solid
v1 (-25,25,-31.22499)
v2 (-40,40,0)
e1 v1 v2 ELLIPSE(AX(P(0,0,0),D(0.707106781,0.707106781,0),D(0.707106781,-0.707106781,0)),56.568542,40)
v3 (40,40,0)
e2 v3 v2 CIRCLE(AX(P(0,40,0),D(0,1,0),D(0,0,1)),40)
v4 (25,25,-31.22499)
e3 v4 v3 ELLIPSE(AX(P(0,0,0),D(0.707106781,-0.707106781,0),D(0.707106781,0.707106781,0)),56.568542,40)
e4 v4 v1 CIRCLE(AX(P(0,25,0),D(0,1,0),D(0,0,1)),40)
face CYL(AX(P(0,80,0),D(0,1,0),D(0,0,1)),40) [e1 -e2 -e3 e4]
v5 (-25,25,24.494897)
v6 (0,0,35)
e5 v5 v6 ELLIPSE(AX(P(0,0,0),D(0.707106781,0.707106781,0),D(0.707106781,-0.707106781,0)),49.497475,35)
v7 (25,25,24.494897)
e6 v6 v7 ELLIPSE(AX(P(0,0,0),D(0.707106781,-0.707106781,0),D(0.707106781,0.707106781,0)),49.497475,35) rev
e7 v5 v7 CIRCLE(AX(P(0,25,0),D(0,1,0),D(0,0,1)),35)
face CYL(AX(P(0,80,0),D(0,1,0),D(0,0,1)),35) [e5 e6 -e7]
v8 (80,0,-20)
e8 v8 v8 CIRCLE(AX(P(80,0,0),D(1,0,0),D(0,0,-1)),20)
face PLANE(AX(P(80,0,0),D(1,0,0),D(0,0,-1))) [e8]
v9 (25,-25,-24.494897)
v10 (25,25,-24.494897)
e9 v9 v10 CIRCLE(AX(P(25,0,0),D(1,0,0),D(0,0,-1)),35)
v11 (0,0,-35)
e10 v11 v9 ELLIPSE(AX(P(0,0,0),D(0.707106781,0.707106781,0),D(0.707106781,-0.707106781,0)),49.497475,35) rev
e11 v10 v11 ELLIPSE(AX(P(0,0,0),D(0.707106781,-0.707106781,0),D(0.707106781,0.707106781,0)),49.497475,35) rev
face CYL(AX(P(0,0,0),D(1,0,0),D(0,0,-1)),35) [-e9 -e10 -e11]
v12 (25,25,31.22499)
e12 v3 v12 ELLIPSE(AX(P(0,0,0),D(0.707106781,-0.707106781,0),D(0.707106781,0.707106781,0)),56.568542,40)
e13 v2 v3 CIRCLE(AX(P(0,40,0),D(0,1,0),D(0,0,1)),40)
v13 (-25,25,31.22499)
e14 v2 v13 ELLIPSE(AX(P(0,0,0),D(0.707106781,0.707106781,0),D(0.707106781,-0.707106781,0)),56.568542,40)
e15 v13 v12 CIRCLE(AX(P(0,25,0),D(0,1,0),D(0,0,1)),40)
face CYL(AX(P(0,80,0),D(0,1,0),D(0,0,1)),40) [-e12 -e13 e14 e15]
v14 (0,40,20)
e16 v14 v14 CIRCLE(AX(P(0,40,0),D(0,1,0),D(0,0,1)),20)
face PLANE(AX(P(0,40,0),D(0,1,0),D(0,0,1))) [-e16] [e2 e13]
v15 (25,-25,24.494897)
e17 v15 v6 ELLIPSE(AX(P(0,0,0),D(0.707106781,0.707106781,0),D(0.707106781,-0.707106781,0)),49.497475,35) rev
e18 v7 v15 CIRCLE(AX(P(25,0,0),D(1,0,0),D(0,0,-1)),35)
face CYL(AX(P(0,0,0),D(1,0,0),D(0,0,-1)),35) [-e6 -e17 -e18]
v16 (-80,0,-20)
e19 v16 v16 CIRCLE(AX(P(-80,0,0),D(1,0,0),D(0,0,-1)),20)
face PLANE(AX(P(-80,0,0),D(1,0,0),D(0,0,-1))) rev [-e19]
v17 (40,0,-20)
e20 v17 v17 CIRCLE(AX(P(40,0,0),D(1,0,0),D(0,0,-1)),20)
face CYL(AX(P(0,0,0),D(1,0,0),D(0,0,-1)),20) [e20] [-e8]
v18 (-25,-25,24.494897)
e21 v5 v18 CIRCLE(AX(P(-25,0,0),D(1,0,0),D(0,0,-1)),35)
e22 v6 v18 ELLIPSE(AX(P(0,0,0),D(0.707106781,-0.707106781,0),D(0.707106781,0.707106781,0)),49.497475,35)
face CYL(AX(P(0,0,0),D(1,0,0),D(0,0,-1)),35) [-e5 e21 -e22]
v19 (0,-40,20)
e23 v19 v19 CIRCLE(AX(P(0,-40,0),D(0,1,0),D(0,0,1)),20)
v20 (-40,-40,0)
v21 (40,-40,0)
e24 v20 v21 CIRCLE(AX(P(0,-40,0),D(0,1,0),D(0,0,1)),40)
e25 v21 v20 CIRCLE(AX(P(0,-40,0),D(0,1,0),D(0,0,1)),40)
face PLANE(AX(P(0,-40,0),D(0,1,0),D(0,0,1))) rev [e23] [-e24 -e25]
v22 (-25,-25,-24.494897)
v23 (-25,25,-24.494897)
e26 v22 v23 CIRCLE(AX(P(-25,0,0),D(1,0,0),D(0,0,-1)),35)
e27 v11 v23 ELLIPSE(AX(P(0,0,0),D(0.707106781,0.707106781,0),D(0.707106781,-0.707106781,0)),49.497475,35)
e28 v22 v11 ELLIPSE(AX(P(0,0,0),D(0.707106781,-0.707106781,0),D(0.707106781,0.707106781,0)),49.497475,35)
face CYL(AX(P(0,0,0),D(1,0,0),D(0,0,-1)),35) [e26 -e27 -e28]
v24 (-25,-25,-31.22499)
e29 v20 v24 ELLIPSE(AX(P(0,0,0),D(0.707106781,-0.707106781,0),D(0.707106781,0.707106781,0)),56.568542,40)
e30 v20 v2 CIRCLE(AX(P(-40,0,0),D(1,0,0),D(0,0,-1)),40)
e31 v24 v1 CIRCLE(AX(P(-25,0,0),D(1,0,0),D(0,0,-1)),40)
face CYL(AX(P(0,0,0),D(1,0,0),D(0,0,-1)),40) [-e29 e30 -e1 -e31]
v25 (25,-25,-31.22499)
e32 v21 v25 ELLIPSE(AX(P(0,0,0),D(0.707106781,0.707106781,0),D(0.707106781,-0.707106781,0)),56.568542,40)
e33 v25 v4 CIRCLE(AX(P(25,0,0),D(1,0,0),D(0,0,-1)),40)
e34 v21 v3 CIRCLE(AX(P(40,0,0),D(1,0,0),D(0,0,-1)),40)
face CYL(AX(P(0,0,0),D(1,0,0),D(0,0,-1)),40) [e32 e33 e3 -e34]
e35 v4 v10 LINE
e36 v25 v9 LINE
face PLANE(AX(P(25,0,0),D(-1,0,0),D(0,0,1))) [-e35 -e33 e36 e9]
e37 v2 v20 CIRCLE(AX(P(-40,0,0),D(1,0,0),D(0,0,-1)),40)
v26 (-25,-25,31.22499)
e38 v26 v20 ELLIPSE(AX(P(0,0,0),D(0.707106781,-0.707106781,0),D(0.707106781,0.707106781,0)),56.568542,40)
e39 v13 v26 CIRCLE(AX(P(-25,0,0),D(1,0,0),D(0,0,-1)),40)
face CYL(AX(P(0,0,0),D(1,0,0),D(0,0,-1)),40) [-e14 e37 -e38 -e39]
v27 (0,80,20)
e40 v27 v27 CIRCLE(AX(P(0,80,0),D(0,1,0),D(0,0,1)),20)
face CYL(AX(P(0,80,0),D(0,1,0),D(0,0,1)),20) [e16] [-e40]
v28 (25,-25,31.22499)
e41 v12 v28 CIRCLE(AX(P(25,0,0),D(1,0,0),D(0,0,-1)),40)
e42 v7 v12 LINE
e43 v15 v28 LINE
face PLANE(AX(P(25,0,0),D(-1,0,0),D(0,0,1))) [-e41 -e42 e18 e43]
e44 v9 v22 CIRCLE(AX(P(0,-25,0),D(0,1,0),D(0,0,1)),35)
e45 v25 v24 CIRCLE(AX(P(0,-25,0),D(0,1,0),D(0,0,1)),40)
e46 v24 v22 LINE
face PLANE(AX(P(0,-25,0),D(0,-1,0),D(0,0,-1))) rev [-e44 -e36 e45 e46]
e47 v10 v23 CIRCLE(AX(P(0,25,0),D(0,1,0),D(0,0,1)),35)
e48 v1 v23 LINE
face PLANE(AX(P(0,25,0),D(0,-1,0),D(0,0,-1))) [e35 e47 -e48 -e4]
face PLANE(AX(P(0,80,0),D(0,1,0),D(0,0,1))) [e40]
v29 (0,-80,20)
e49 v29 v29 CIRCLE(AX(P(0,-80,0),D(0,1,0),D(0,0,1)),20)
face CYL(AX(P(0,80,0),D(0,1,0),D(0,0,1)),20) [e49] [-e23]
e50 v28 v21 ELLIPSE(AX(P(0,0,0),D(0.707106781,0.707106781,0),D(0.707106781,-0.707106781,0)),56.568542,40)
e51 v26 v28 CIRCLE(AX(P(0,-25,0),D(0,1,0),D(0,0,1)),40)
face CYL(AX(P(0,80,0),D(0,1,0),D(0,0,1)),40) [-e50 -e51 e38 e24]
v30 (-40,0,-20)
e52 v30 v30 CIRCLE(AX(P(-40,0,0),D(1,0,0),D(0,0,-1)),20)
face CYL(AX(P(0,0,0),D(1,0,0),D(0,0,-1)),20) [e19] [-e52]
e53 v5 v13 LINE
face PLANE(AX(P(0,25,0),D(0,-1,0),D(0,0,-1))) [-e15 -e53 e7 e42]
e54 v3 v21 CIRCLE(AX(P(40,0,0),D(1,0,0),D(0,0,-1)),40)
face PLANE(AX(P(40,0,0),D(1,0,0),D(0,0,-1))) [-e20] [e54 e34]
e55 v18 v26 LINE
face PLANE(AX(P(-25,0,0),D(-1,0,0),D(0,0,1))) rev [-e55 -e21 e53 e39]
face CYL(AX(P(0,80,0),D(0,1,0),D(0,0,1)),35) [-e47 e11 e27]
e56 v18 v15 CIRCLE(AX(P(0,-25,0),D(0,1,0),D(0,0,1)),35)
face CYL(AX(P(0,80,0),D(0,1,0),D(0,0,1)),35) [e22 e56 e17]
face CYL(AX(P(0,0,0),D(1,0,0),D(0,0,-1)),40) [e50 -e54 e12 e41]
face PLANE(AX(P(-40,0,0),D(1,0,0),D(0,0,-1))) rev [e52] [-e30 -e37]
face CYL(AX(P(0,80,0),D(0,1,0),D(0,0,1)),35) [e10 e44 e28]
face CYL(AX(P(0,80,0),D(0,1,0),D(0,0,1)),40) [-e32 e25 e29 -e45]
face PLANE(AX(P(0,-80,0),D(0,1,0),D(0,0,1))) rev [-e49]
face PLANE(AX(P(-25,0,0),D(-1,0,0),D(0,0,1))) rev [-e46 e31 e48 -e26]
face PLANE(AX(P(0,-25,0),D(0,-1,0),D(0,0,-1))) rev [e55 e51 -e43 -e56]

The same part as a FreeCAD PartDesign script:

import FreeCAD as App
import Part
import Sketcher

V = App.Vector
Q = App.Units.Quantity

doc = App.newDocument("Part")
body = doc.addObject("PartDesign::Body", "Body")

# Sketch on XY plane
sketch1 = body.newObject("Sketcher::SketchObject", "Sketch")
sketch1.AttachmentSupport = (doc.getObject("XY_Plane"), [""])
sketch1.MapMode = "FlatFace"
sketch1.addGeometry([
    Part.LineSegment(V(-40, 20, 0), V(-80, 20, 0)),  # 0
    Part.LineSegment(V(-80, 20, 0), V(-80, 0, 0)),  # 1
    Part.LineSegment(V(-80, 0, 0), V(80, 0, 0)),  # 2
    Part.LineSegment(V(80, 0, 0), V(80, 20, 0)),  # 3
    Part.LineSegment(V(80, 20, 0), V(40, 20, 0)),  # 4
    Part.LineSegment(V(40, 20, 0), V(40, 40, 0)),  # 5
    Part.LineSegment(V(40, 40, 0), V(25, 40, 0)),  # 6
    Part.LineSegment(V(25, 40, 0), V(25, 35, 0)),  # 7
    Part.LineSegment(V(25, 35, 0), V(-25, 35, 0)),  # 8
    Part.LineSegment(V(-25, 35, 0), V(-25, 40, 0)),  # 9
    Part.LineSegment(V(-25, 40, 0), V(-40, 40, 0)),  # 10
    Part.LineSegment(V(-40, 40, 0), V(-40, 20, 0)),  # 11
], False)
sketch1.addConstraint([
    Sketcher.Constraint("Coincident", 0, 2, 1, 1),
    Sketcher.Constraint("Coincident", 1, 2, 2, 1),
    Sketcher.Constraint("Coincident", 2, 2, 3, 1),
    Sketcher.Constraint("Coincident", 3, 2, 4, 1),
    Sketcher.Constraint("Coincident", 4, 2, 5, 1),
    Sketcher.Constraint("Coincident", 5, 2, 6, 1),
    Sketcher.Constraint("Coincident", 6, 2, 7, 1),
    Sketcher.Constraint("Coincident", 7, 2, 8, 1),
    Sketcher.Constraint("Coincident", 8, 2, 9, 1),
    Sketcher.Constraint("Coincident", 9, 2, 10, 1),
    Sketcher.Constraint("Coincident", 10, 2, 11, 1),
    Sketcher.Constraint("Coincident", 11, 2, 0, 1),
    Sketcher.Constraint("Horizontal", 0),
    Sketcher.Constraint("Vertical", 1),
    Sketcher.Constraint("Horizontal", 2),
    Sketcher.Constraint("Vertical", 3),
    Sketcher.Constraint("Horizontal", 4),
    Sketcher.Constraint("Vertical", 5),
    Sketcher.Constraint("Horizontal", 6),
    Sketcher.Constraint("Vertical", 7),
    Sketcher.Constraint("Horizontal", 8),
    Sketcher.Constraint("Vertical", 9),
    Sketcher.Constraint("Horizontal", 10),
    Sketcher.Constraint("Vertical", 11),
    Sketcher.Constraint("Symmetric", 1, 2, 2, 2, -1, 1),
    Sketcher.Constraint("Symmetric", 6, 2, 9, 2, -2),
    Sketcher.Constraint("Symmetric", 4, 2, 11, 2, -2),
    Sketcher.Constraint("Equal", 3, 5),
    Sketcher.Constraint("DistanceX", 0, 2, 0, 1, Q("40 mm")),
    Sketcher.Constraint("DistanceX", 2, 1, 2, 2, Q("160 mm")),
    Sketcher.Constraint("DistanceX", 6, 2, 6, 1, Q("15 mm")),
    Sketcher.Constraint("DistanceY", 1, 2, 1, 1, Q("20 mm")),
    Sketcher.Constraint("DistanceY", 7, 2, 7, 1, Q("5 mm")),
])
revolution = body.newObject("PartDesign::Revolution", "Revolution")
revolution.Profile = sketch1
revolution.ReferenceAxis = (sketch1, ["H_Axis"])
revolution.Angle = 360

# Sketch on XY plane
sketch2 = body.newObject("Sketcher::SketchObject", "Sketch001")
sketch2.AttachmentSupport = (doc.getObject("XY_Plane"), [""])
sketch2.MapMode = "FlatFace"
sketch2.addGeometry([
    Part.LineSegment(V(0, 80, 0), V(0, -80, 0)),  # 0
    Part.LineSegment(V(0, -80, 0), V(20, -80, 0)),  # 1
    Part.LineSegment(V(20, -80, 0), V(20, -40, 0)),  # 2
    Part.LineSegment(V(20, -40, 0), V(40, -40, 0)),  # 3
    Part.LineSegment(V(40, -40, 0), V(40, -25, 0)),  # 4
    Part.LineSegment(V(40, -25, 0), V(35, -25, 0)),  # 5
    Part.LineSegment(V(35, -25, 0), V(35, 25, 0)),  # 6
    Part.LineSegment(V(35, 25, 0), V(40, 25, 0)),  # 7
    Part.LineSegment(V(40, 25, 0), V(40, 40, 0)),  # 8
    Part.LineSegment(V(40, 40, 0), V(20, 40, 0)),  # 9
    Part.LineSegment(V(20, 40, 0), V(20, 80, 0)),  # 10
    Part.LineSegment(V(20, 80, 0), V(0, 80, 0)),  # 11
], False)
sketch2.addConstraint([
    Sketcher.Constraint("Coincident", 0, 2, 1, 1),
    Sketcher.Constraint("Coincident", 1, 2, 2, 1),
    Sketcher.Constraint("Coincident", 2, 2, 3, 1),
    Sketcher.Constraint("Coincident", 3, 2, 4, 1),
    Sketcher.Constraint("Coincident", 4, 2, 5, 1),
    Sketcher.Constraint("Coincident", 5, 2, 6, 1),
    Sketcher.Constraint("Coincident", 6, 2, 7, 1),
    Sketcher.Constraint("Coincident", 7, 2, 8, 1),
    Sketcher.Constraint("Coincident", 8, 2, 9, 1),
    Sketcher.Constraint("Coincident", 9, 2, 10, 1),
    Sketcher.Constraint("Coincident", 10, 2, 11, 1),
    Sketcher.Constraint("Coincident", 11, 2, 0, 1),
    Sketcher.Constraint("Vertical", 0),
    Sketcher.Constraint("Horizontal", 1),
    Sketcher.Constraint("Vertical", 2),
    Sketcher.Constraint("Horizontal", 3),
    Sketcher.Constraint("Vertical", 4),
    Sketcher.Constraint("Horizontal", 5),
    Sketcher.Constraint("Vertical", 6),
    Sketcher.Constraint("Horizontal", 7),
    Sketcher.Constraint("Vertical", 8),
    Sketcher.Constraint("Horizontal", 9),
    Sketcher.Constraint("Vertical", 10),
    Sketcher.Constraint("Horizontal", 11),
    Sketcher.Constraint("Symmetric", 0, 2, 11, 2, -1, 1),
    Sketcher.Constraint("Symmetric", 4, 2, 7, 2, -1),
    Sketcher.Constraint("Symmetric", 2, 2, 9, 2, -1),
    Sketcher.Constraint("Equal", 1, 3),
    Sketcher.Constraint("DistanceX", 1, 1, 1, 2, Q("20 mm")),
    Sketcher.Constraint("DistanceX", 5, 2, 5, 1, Q("5 mm")),
    Sketcher.Constraint("DistanceY", 0, 2, 0, 1, Q("160 mm")),
    Sketcher.Constraint("DistanceY", 2, 1, 2, 2, Q("40 mm")),
    Sketcher.Constraint("DistanceY", 4, 1, 4, 2, Q("15 mm")),
])
revolution2 = body.newObject("PartDesign::Revolution", "Revolution001")
revolution2.Profile = sketch2
revolution2.ReferenceAxis = (sketch2, ["V_Axis"])
revolution2.Angle = 360

doc.recompute()
